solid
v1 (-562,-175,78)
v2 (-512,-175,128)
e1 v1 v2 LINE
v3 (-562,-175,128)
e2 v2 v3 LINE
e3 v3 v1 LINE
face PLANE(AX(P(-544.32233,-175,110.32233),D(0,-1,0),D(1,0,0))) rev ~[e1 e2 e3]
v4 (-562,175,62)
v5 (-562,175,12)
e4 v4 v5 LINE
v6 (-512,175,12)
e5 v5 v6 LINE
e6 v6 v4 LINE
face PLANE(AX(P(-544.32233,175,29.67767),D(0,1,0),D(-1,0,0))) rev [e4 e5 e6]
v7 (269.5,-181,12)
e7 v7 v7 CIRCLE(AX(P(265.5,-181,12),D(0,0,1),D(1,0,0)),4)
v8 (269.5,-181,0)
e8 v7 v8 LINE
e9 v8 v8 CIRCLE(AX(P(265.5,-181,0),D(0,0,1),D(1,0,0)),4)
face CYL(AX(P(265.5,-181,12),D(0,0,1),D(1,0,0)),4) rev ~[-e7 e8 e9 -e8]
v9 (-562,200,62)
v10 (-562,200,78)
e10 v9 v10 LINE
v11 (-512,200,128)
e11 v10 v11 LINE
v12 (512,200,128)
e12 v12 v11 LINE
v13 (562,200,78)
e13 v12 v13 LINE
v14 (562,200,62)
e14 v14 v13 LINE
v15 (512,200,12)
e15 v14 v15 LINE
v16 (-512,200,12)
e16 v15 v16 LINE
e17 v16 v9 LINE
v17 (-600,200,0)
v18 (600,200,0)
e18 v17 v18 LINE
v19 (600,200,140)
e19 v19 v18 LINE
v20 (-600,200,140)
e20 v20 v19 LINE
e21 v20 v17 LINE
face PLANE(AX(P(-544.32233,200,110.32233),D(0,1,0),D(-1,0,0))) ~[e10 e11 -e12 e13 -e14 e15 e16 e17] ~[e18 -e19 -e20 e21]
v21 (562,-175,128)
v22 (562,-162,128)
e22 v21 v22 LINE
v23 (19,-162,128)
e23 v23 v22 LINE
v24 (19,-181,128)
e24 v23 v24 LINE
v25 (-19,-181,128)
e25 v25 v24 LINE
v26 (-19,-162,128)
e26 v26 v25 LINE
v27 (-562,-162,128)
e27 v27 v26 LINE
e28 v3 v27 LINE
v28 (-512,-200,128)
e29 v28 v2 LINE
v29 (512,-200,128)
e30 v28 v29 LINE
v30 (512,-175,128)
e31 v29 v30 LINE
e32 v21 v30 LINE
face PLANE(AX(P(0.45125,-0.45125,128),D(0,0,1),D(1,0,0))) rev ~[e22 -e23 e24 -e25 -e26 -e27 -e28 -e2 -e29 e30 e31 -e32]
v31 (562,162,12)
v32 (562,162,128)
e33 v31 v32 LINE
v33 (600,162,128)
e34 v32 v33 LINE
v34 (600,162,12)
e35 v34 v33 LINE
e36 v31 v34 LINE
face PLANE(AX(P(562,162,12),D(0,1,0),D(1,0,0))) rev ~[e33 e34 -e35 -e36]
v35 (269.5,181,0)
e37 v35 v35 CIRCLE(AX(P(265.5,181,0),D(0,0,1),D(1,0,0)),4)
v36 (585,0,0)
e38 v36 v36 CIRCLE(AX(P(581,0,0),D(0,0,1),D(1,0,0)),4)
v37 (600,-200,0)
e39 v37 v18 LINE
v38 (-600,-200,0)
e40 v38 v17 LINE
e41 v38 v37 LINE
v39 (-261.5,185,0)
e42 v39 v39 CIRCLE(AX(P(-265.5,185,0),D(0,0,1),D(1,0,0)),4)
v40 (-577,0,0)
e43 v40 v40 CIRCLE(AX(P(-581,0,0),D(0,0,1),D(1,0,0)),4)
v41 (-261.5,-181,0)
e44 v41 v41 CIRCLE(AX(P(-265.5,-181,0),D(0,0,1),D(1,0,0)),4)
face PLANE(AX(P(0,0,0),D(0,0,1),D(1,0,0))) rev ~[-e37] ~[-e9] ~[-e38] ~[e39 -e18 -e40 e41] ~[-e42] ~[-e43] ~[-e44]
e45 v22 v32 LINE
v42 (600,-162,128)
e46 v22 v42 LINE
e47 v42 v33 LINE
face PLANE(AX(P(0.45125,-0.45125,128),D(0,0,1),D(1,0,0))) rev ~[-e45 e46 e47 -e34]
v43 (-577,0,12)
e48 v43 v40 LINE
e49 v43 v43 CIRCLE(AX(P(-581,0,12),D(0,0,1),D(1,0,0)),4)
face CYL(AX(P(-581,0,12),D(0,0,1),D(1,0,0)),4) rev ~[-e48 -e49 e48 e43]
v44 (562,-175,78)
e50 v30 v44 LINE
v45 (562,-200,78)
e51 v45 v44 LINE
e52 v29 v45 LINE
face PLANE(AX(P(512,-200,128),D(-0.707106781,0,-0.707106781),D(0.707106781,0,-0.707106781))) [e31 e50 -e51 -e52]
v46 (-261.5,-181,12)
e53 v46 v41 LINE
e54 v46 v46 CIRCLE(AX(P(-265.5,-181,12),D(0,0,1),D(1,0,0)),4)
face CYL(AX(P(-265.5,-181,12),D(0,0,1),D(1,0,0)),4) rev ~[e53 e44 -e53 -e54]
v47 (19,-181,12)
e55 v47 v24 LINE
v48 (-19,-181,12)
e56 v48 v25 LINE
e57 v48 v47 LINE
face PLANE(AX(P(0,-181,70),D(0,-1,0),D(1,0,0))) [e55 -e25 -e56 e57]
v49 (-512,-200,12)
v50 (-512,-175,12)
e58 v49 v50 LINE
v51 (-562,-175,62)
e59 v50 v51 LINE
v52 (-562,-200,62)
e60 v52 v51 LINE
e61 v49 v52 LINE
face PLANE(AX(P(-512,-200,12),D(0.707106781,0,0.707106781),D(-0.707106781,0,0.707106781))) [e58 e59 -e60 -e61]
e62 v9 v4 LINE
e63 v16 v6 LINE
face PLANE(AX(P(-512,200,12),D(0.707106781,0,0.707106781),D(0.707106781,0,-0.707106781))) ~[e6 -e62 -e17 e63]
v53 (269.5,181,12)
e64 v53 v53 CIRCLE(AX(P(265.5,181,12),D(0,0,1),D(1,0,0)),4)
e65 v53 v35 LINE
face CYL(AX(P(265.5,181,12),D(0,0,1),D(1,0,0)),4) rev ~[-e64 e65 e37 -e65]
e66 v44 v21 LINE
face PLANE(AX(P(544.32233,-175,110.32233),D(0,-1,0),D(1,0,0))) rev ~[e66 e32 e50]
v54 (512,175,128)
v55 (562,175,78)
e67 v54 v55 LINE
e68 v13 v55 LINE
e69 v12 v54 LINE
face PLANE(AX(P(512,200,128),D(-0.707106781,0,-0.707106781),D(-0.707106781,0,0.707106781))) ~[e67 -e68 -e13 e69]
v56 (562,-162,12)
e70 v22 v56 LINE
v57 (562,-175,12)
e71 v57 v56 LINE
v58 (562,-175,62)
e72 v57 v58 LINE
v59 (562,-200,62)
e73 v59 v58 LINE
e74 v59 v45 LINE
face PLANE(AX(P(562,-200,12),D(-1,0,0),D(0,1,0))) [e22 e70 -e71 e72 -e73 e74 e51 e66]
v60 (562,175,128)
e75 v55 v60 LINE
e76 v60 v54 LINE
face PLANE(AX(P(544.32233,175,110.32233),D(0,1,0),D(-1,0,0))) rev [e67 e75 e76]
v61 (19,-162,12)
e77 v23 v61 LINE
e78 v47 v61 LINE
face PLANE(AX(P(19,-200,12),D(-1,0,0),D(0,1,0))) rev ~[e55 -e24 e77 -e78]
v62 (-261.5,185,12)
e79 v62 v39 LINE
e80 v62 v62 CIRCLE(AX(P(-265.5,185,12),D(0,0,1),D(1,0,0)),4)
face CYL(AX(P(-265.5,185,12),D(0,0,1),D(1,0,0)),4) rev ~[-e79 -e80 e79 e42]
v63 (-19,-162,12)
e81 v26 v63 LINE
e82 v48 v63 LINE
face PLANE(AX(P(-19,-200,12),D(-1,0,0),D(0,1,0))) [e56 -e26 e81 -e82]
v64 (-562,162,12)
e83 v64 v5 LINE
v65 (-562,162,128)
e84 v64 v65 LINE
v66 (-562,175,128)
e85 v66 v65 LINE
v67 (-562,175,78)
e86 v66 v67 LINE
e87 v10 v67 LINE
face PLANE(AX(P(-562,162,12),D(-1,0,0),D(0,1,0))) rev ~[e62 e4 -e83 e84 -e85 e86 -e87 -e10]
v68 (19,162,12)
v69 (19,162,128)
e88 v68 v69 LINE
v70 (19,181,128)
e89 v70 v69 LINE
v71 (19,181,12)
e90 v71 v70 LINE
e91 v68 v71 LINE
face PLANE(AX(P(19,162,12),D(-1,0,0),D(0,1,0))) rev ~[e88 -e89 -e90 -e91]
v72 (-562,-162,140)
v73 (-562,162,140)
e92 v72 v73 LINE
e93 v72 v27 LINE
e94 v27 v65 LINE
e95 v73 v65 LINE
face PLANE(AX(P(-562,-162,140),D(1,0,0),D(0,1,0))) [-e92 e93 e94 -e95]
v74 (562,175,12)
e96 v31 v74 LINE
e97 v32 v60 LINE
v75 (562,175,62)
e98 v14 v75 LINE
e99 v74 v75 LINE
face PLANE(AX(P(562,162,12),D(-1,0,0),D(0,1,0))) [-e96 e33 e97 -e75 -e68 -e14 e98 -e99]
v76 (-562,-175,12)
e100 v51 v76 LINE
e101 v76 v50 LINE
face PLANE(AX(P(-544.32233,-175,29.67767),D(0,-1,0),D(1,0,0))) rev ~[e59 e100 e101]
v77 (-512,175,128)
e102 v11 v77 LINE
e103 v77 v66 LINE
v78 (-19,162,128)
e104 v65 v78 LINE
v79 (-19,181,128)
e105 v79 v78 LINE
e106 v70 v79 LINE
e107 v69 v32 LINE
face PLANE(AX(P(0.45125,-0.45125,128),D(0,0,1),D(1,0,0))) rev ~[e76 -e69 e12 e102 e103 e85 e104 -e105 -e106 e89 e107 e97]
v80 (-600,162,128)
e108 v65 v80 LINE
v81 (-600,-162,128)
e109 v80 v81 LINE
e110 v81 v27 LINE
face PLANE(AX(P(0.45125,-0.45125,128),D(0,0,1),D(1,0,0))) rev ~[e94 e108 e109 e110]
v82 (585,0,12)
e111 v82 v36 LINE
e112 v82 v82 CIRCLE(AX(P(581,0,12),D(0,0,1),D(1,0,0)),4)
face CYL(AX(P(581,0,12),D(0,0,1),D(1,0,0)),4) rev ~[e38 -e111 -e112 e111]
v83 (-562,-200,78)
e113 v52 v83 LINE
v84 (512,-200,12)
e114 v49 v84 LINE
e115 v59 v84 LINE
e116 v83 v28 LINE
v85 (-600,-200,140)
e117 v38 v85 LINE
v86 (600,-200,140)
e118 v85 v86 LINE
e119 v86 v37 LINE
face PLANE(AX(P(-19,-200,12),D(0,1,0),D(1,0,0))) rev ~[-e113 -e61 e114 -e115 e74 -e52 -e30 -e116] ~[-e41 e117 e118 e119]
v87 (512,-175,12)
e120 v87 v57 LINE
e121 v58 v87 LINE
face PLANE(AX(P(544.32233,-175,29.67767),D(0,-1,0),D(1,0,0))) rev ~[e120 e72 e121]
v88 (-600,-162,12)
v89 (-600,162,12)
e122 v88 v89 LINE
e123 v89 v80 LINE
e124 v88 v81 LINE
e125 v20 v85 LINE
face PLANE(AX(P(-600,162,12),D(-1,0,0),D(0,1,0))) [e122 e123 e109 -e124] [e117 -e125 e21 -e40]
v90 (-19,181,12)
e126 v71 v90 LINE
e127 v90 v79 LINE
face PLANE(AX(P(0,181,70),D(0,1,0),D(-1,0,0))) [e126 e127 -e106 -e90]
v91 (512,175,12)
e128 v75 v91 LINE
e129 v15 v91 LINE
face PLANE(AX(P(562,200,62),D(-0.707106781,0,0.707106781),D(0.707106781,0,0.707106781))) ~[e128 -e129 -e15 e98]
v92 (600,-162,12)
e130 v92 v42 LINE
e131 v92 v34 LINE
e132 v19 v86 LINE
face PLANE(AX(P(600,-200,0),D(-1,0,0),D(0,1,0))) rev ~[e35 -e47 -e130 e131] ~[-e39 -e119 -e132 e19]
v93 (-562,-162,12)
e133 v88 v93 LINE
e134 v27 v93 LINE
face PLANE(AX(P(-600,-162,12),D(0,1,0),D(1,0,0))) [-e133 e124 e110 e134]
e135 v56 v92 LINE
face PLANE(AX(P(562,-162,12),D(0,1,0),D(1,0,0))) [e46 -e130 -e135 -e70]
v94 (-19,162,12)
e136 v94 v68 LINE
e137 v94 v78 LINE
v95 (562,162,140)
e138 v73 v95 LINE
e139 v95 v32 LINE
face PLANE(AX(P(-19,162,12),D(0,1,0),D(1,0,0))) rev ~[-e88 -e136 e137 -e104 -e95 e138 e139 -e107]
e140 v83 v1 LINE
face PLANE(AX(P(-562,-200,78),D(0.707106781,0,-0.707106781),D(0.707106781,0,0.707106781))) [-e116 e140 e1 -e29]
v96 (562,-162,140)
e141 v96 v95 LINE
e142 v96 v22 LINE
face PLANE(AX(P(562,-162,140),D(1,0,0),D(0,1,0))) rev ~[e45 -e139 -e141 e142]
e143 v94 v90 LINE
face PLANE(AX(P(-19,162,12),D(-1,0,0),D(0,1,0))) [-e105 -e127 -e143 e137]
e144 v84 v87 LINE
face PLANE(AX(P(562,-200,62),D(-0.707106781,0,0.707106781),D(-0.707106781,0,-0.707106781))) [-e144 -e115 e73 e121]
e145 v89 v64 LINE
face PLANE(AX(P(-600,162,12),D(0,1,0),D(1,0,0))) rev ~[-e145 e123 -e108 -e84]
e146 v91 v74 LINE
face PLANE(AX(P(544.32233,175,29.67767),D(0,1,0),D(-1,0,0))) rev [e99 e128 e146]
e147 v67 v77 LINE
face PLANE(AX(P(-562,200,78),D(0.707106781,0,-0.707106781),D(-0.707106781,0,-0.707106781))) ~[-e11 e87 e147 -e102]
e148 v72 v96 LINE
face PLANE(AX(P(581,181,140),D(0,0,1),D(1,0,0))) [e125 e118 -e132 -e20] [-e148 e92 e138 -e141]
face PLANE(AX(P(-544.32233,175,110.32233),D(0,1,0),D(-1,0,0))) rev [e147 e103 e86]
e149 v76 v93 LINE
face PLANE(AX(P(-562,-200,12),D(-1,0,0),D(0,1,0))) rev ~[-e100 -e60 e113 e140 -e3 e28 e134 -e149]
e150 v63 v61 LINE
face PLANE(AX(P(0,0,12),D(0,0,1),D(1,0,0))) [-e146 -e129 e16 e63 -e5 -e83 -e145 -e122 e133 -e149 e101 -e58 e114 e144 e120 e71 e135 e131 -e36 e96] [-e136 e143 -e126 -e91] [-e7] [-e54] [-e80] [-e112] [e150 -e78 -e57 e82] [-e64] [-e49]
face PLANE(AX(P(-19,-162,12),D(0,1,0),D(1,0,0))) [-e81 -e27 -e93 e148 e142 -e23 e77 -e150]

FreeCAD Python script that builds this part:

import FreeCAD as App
import Part
import Sketcher

V = App.Vector


def add_polygon(sketch, points):
    """Adds a closed chain of lines whose ends are joined by coincident constraints."""
    first, n = sketch.GeometryCount, len(points)
    for a, b in zip(points, points[1:] + points[:1]):
        sketch.addGeometry(Part.LineSegment(App.Vector(*a, 0), App.Vector(*b, 0)), False)
    for i in range(n):
        sketch.addConstraint(Sketcher.Constraint("Coincident", first + i, 2, first + (i + 1) % n, 1))

doc = App.newDocument("Part")
body = doc.addObject("PartDesign::Body", "Body")

# Sketch on XY plane
sketch1 = doc.addObject("Sketcher::SketchObject", "Sketch")
body.addObject(sketch1)
sketch1.AttachmentSupport = (doc.XY_Plane, [""])
sketch1.MapMode = "FlatFace"
add_polygon(sketch1, [(-600, 200), (-600, -200), (600, -200), (600, 200)])  # lines 0-3
sketch1.addConstraint([
    Sketcher.Constraint("Vertical", 0),
    Sketcher.Constraint("Horizontal", 1),
    Sketcher.Constraint("Vertical", 2),
    Sketcher.Constraint("Horizontal", 3),
    Sketcher.Constraint("Symmetric", 0, 2, 2, 2, -1, 1),
    Sketcher.Constraint("DistanceX", 1, 1, 1, 2, 1200.0),
    Sketcher.Constraint("DistanceY", 0, 2, 0, 1, 400.0),
])
pad1 = doc.addObject("PartDesign::Pad", "Pad")
body.addObject(pad1)
pad1.Profile = sketch1
pad1.Length = 12

# Sketch on XY plane
sketch2 = doc.addObject("Sketcher::SketchObject", "Sketch001")
body.addObject(sketch2)
sketch2.AttachmentSupport = (doc.XY_Plane, [""])
sketch2.MapMode = "FlatFace"
sketch2.AttachmentOffset = App.Placement(V(0, 0, 12), App.Rotation())
add_polygon(sketch2, [(-600, 200), (-600, 162), (-562, 162), (-562, 200)])  # lines 0-3
add_polygon(sketch2, [(562, 200), (562, 162), (600, 162), (600, 200)])  # lines 4-7
add_polygon(sketch2, [(562, -162), (562, -200), (600, -200), (600, -162)])  # lines 8-11
add_polygon(sketch2, [(-600, -162), (-600, -200), (-562, -200), (-562, -162)])  # lines 12-15
sketch2.addConstraint([
    Sketcher.Constraint("Vertical", 0),
    Sketcher.Constraint("Horizontal", 1),
    Sketcher.Constraint("Vertical", 2),
    Sketcher.Constraint("Horizontal", 3),
    Sketcher.Constraint("Vertical", 4),
    Sketcher.Constraint("Horizontal", 5),
    Sketcher.Constraint("Vertical", 6),
    Sketcher.Constraint("Horizontal", 7),
    Sketcher.Constraint("Vertical", 8),
    Sketcher.Constraint("Horizontal", 9),
    Sketcher.Constraint("Vertical", 10),
    Sketcher.Constraint("Horizontal", 11),
    Sketcher.Constraint("Vertical", 12),
    Sketcher.Constraint("Horizontal", 13),
    Sketcher.Constraint("Vertical", 14),
    Sketcher.Constraint("Horizontal", 15),
    Sketcher.Constraint("Symmetric", 2, 2, 8, 2, -1, 1),
    Sketcher.Constraint("Symmetric", 0, 2, 10, 2, -1, 1),
    Sketcher.Constraint("Symmetric", 6, 2, 12, 2, -1, 1),
    Sketcher.Constraint("Symmetric", 4, 2, 14, 2, -1, 1),
    Sketcher.Constraint("Symmetric", 1, 2, 4, 2, -2),
    Sketcher.Constraint("Symmetric", 3, 2, 6, 2, -2),
    Sketcher.Constraint("Equal", 15, 0),
    Sketcher.Constraint("DistanceX", 1, 1, 1, 2, 38.0),
    Sketcher.Constraint("DistanceX", 0, 2, -1, 1, 600.0),
    Sketcher.Constraint("DistanceY", -1, 1, 0, 2, 162.0),
])
pad2 = doc.addObject("PartDesign::Pad", "Pad001")
body.addObject(pad2)
pad2.Profile = sketch2
pad2.Length = 128

# Sketch on XY plane
sketch3 = doc.addObject("Sketcher::SketchObject", "Sketch002")
body.addObject(sketch3)
sketch3.AttachmentSupport = (doc.XY_Plane, [""])
sketch3.MapMode = "FlatFace"
sketch3.AttachmentOffset = App.Placement(V(0, 0, 140), App.Rotation())
add_polygon(sketch3, [(600, 200), (-562, 200), (-562, 162), (-600, 162), (-600, -200), (600, -200)])  # lines 0-5
sketch3.addConstraint([
    Sketcher.Constraint("Horizontal", 0),
    Sketcher.Constraint("Vertical", 1),
    Sketcher.Constraint("Horizontal", 2),
    Sketcher.Constraint("Vertical", 3),
    Sketcher.Constraint("Horizontal", 4),
    Sketcher.Constraint("Vertical", 5),
    Sketcher.Constraint("Symmetric", 3, 2, 5, 2, -1, 1),
    Sketcher.Constraint("Equal", 2, 1),
    Sketcher.Constraint("DistanceX", 0, 2, 0, 1, 1162.0),
    Sketcher.Constraint("DistanceX", 2, 2, 2, 1, 38.0),
    Sketcher.Constraint("DistanceY", 3, 2, 3, 1, 362.0),
])
pad3 = doc.addObject("PartDesign::Pad", "Pad002")
body.addObject(pad3)
pad3.Profile = sketch3
pad3.Length = 12
pad3.Reversed = True

# Sketch on XZ plane
sketch4 = doc.addObject("Sketcher::SketchObject", "Sketch003")
body.addObject(sketch4)
sketch4.AttachmentSupport = (doc.XZ_Plane, [""])
sketch4.MapMode = "FlatFace"
sketch4.AttachmentOffset = App.Placement(V(0, 0, 200), App.Rotation())
add_polygon(sketch4, [(-562, 128), (-562, 78), (-512, 128)])  # lines 0-2
add_polygon(sketch4, [(-512, 12), (-562, 62), (-562, 12)])  # lines 3-5
add_polygon(sketch4, [(562, 62), (512, 12), (562, 12)])  # lines 6-8
add_polygon(sketch4, [(562, 128), (512, 128), (562, 78)])  # lines 9-11
sketch4.addConstraint([
    Sketcher.Constraint("Vertical", 0),
    Sketcher.Constraint("Horizontal", 2),
    Sketcher.Constraint("Vertical", 4),
    Sketcher.Constraint("Horizontal", 5),
    Sketcher.Constraint("Horizontal", 7),
    Sketcher.Constraint("Vertical", 8),
    Sketcher.Constraint("Horizontal", 9),
    Sketcher.Constraint("Vertical", 11),
    Sketcher.Constraint("Symmetric", 5, 2, 6, 2, -2),
    Sketcher.Constraint("Symmetric", 3, 2, 8, 2, -2),
    Sketcher.Constraint("Symmetric", 1, 2, 9, 2, -2),
    Sketcher.Constraint("Symmetric", 0, 2, 10, 2, -2),
    Sketcher.Constraint("Perpendicular", 1, 3),
    Sketcher.Constraint("Perpendicular", 3, 6),
    Sketcher.Constraint("Vertical", 2, 2, 3, 2),
    Sketcher.Constraint("Vertical", 1, 2, 5, 2),
    Sketcher.Constraint("DistanceX", 2, 2, 2, 1, 50.0),
    Sketcher.Constraint("DistanceX", 0, 2, -1, 1, 562.0),
    Sketcher.Constraint("DistanceY", -1, 1, 0, 2, 78.0),
    Sketcher.Constraint("DistanceY", -1, 1, 3, 2, 62.0),
])
pad4 = doc.addObject("PartDesign::Pad", "Pad003")
body.addObject(pad4)
pad4.Profile = sketch4
pad4.Length = 25
pad4.Reversed = True
body2 = doc.addObject("PartDesign::Body", "Body001")
doc.recompute()

body2.BaseFeature = body
doc.recompute()

mirroring = doc.addObject("Part::Mirroring", "Mirroring")
mirroring.Source = body
mirroring.Base = V(0, 0, 0)
mirroring.Normal = V(0, -1, 0)
body3 = doc.addObject("PartDesign::Body", "Body002")
body3.BaseFeature = mirroring
boolean = doc.addObject("PartDesign::Boolean", "Boolean")
body2.addObject(boolean)
boolean.Type = "Fuse"
boolean.addObjects([body3])
doc.recompute()

# Sketch on XY plane
sketch5 = doc.addObject("Sketcher::SketchObject", "Sketch004")
body2.addObject(sketch5)
sketch5.AttachmentSupport = (doc.getObject("XY_Plane001"), [""])
sketch5.MapMode = "FlatFace"
sketch5.AttachmentOffset = App.Placement(V(0, 0, 12), App.Rotation())
add_polygon(sketch5, [(-19, -162), (-19, -200), (19, -200), (19, -162)])  # lines 0-3
add_polygon(sketch5, [(-19, 200), (-19, 162), (19, 162), (19, 200)])  # lines 4-7
sketch5.addConstraint([
    Sketcher.Constraint("Vertical", 0),
    Sketcher.Constraint("Horizontal", 1),
    Sketcher.Constraint("Vertical", 2),
    Sketcher.Constraint("Horizontal", 3),
    Sketcher.Constraint("Vertical", 4),
    Sketcher.Constraint("Horizontal", 5),
    Sketcher.Constraint("Vertical", 6),
    Sketcher.Constraint("Horizontal", 7),
    Sketcher.Constraint("Symmetric", 2, 2, 4, 2, -1, 1),
    Sketcher.Constraint("Symmetric", 0, 2, 6, 2, -1, 1),
    Sketcher.Constraint("Vertical", 3, 2, 4, 2),
    Sketcher.Constraint("Equal", 7, 0),
    Sketcher.Constraint("DistanceX", 1, 1, 1, 2, 38.0),
    Sketcher.Constraint("DistanceY", 0, 2, -1, 1, 200.0),
])
pad5 = doc.addObject("PartDesign::Pad", "Pad004")
body2.addObject(pad5)
pad5.Profile = sketch5
pad5.Length = 120

# Sketch on XY plane
sketch6 = doc.addObject("Sketcher::SketchObject", "Sketch005")
body2.addObject(sketch6)
sketch6.AttachmentSupport = (doc.getObject("XY_Plane001"), [""])
sketch6.MapMode = "FlatFace"
sketch6.AttachmentOffset = App.Placement(V(0, 0, 12), App.Rotation())
sketch6.addGeometry([
    Part.Circle(V(-265.5, -181, 0), V(0, 0, 1), 4),  # 0
    Part.Circle(V(-581, 0, 0), V(0, 0, 1), 4),  # 1
    Part.Circle(V(-265.5, 185, 0), V(0, 0, 1), 4),  # 2
    Part.Circle(V(265.5, 181, 0), V(0, 0, 1), 4),  # 3
    Part.Circle(V(265.5, -181, 0), V(0, 0, 1), 4),  # 4
    Part.Circle(V(581, 0, 0), V(0, 0, 1), 4),  # 5
], False)
sketch6.addConstraint([
    Sketcher.Constraint("Equal", 0, 1),
    Sketcher.Constraint("Equal", 1, 2),
    Sketcher.Constraint("Equal", 2, 3),
    Sketcher.Constraint("Equal", 3, 4),
    Sketcher.Constraint("Equal", 4, 5),
    Sketcher.Constraint("Symmetric", 0, 3, 3, 3, -1, 1),
    Sketcher.Constraint("Symmetric", 1, 3, 5, 3, -1, 1),
    Sketcher.Constraint("Symmetric", 0, 3, 4, 3, -2),
    Sketcher.Constraint("PointOnObject", 1, 3, -1),
    Sketcher.Constraint("Vertical", 0, 3, 2, 3),
    Sketcher.Constraint("Diameter", 0, 8.0),
    Sketcher.Constraint("DistanceY", 0, 3, -1, 1, 181.0),
    Sketcher.Constraint("DistanceX", 1, 3, -1, 1, 581.0),
    Sketcher.Constraint("DistanceY", -1, 1, 2, 3, 185.0),
    Sketcher.Constraint("DistanceX", 2, 3, 3, 3, 531.0),
])
pocket1 = doc.addObject("PartDesign::Pocket", "Pocket")
body2.addObject(pocket1)
pocket1.Profile = sketch6
pocket1.Length = 25

# Sketch on XY plane
sketch7 = doc.addObject("Sketcher::SketchObject", "Sketch006")
body2.addObject(sketch7)
sketch7.AttachmentSupport = (doc.getObject("XY_Plane001"), [""])
sketch7.MapMode = "FlatFace"
sketch7.AttachmentOffset = App.Placement(V(0, 0, 140), App.Rotation())
add_polygon(sketch7, [(-562, 162), (-562, -162), (562, -162), (562, 162)])  # lines 0-3
sketch7.addConstraint([
    Sketcher.Constraint("Vertical", 0),
    Sketcher.Constraint("Horizontal", 1),
    Sketcher.Constraint("Vertical", 2),
    Sketcher.Constraint("Horizontal", 3),
    Sketcher.Constraint("Symmetric", 0, 2, 2, 2, -1, 1),
    Sketcher.Constraint("DistanceX", 1, 1, 1, 2, 1124.0),
    Sketcher.Constraint("DistanceY", 0, 2, 0, 1, 324.0),
])
pocket2 = doc.addObject("PartDesign::Pocket", "Pocket001")
body2.addObject(pocket2)
pocket2.Profile = sketch7
pocket2.Length = 25

# Sketch on XZ plane
sketch8 = doc.addObject("Sketcher::SketchObject", "Sketch007")
body2.addObject(sketch8)
sketch8.AttachmentSupport = (doc.getObject("XZ_Plane001"), [""])
sketch8.MapMode = "FlatFace"
sketch8.AttachmentOffset = App.Placement(V(0, 0, 200), App.Rotation())
add_polygon(sketch8, [(-19, 128), (-19, 12), (19, 12), (19, 128)])  # lines 0-3
sketch8.addConstraint([
    Sketcher.Constraint("Vertical", 0),
    Sketcher.Constraint("Horizontal", 1),
    Sketcher.Constraint("Vertical", 2),
    Sketcher.Constraint("Horizontal", 3),
    Sketcher.Constraint("DistanceX", 1, 1, 1, 2, 38.0),
    Sketcher.Constraint("DistanceY", 0, 2, 0, 1, 116.0),
    Sketcher.Constraint("DistanceX", 0, 2, -1, 1, 19.0),
    Sketcher.Constraint("DistanceY", -1, 1, 0, 2, 12.0),
])
pocket3 = doc.addObject("PartDesign::Pocket", "Pocket002")
body2.addObject(pocket3)
pocket3.Profile = sketch8
pocket3.Length = 19

# Sketch on XZ plane
sketch9 = doc.addObject("Sketcher::SketchObject", "Sketch008")
body2.addObject(sketch9)
sketch9.AttachmentSupport = (doc.getObject("XZ_Plane001"), [""])
sketch9.MapMode = "FlatFace"
sketch9.AttachmentOffset = App.Placement(V(0, 0, -200), App.Rotation())
add_polygon(sketch9, [(19, 128), (19, 12), (-19, 12), (-19, 128)])  # lines 0-3
sketch9.addConstraint([
    Sketcher.Constraint("Vertical", 0),
    Sketcher.Constraint("Horizontal", 1),
    Sketcher.Constraint("Vertical", 2),
    Sketcher.Constraint("Horizontal", 3),
    Sketcher.Constraint("DistanceX", 1, 2, 1, 1, 38.0),
    Sketcher.Constraint("DistanceY", 0, 2, 0, 1, 116.0),
    Sketcher.Constraint("DistanceX", -1, 1, 0, 2, 19.0),
    Sketcher.Constraint("DistanceY", -1, 1, 0, 2, 12.0),
])
pocket4 = doc.addObject("PartDesign::Pocket", "Pocket003")
body2.addObject(pocket4)
pocket4.Profile = sketch9
pocket4.Length = 19
pocket4.Reversed = True
mirroring.Visibility = False

doc.recompute()
